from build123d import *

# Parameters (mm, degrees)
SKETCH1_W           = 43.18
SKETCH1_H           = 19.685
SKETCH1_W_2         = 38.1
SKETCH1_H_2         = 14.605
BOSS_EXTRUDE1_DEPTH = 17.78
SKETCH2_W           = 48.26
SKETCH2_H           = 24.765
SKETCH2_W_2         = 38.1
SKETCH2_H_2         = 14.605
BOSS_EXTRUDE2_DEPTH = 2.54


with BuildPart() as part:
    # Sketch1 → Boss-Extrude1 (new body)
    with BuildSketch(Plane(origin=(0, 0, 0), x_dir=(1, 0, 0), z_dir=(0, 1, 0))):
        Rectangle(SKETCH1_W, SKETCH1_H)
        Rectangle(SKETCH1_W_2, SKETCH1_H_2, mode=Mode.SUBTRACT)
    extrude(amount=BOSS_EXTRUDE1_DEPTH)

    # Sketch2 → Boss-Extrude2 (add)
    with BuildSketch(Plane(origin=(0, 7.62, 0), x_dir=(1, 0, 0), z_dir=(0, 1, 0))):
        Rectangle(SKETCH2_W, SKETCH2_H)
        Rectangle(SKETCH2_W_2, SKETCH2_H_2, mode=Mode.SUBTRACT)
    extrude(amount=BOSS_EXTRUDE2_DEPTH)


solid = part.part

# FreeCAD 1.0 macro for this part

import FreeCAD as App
import Part
import Sketcher
from FreeCAD import Vector
Q = App.Units.Quantity


def add_polygon(sketch, points):
    """Adds a closed chain of lines whose ends are joined by coincident constraints."""
    first, n = sketch.GeometryCount, len(points)
    for a, b in zip(points, points[1:] + points[:1]):
        sketch.addGeometry(Part.LineSegment(App.Vector(*a, 0), App.Vector(*b, 0)), False)
    for i in range(n):
        sketch.addConstraint(Sketcher.Constraint("Coincident", first + i, 2, first + (i + 1) % n, 1))

doc = App.newDocument("Part")
body = doc.addObject("PartDesign::Body", "Body")

sketch1 = doc.addObject("Sketcher::SketchObject", "Sketch")
body.addObject(sketch1)
sketch1.AttachmentSupport = (doc.XZ_Plane, [""])
sketch1.MapMode = "FlatFace"
add_polygon(sketch1, [(-21.59, -9.8425), (-21.59, 9.8425), (21.59, 9.8425), (21.59, -9.8425)])
add_polygon(sketch1, [(19.05, 7.3025), (-19.05, 7.3025), (-19.05, -7.3025), (19.05, -7.3025)])
sketch1.addConstraint([
    Sketcher.Constraint("Vertical", 0),
    Sketcher.Constraint("Horizontal", 1),
    Sketcher.Constraint("Vertical", 2),
    Sketcher.Constraint("Horizontal", 3),
    Sketcher.Constraint("Horizontal", 4),
    Sketcher.Constraint("Vertical", 5),
    Sketcher.Constraint("Horizontal", 6),
    Sketcher.Constraint("Vertical", 7),
    Sketcher.Constraint("Symmetric", 0, 2, 2, 2, -1, 1),
    Sketcher.Constraint("Symmetric", 4, 2, 6, 2, -1, 1),
    Sketcher.Constraint("DistanceX", 1, 1, 1, 2, Q("1.7 in")),
    Sketcher.Constraint("DistanceX", 4, 2, 4, 1, Q("1.5 in")),
    Sketcher.Constraint("DistanceY", 4, 2, 0, 2, Q("0.1 in")),
    Sketcher.Constraint("DistanceY", 0, 1, 0, 2, Q("0.775 in")),
])
pad1 = doc.addObject("PartDesign::Pad", "Pad")
body.addObject(pad1)
pad1.Profile = sketch1
pad1.Length = Q("0.7 in")
pad1.Reversed = True

sketch2 = doc.addObject("Sketcher::SketchObject", "Sketch001")
body.addObject(sketch2)
sketch2.AttachmentSupport = (doc.XZ_Plane, [""])
sketch2.MapMode = "FlatFace"
sketch2.AttachmentOffset = App.Placement(Vector(0, 0, -0.3 * 25.4), App.Rotation())
add_polygon(sketch2, [(-24.13, -12.3825), (-24.13, 12.3825), (24.13, 12.3825), (24.13, -12.3825)])
add_polygon(sketch2, [(19.05, 7.3025), (-19.05, 7.3025), (-19.05, -7.3025), (19.05, -7.3025)])
sketch2.addConstraint([
    Sketcher.Constraint("Vertical", 0),
    Sketcher.Constraint("Horizontal", 1),
    Sketcher.Constraint("Vertical", 2),
    Sketcher.Constraint("Horizontal", 3),
    Sketcher.Constraint("Horizontal", 4),
    Sketcher.Constraint("Vertical", 5),
    Sketcher.Constraint("Horizontal", 6),
    Sketcher.Constraint("Vertical", 7),
    Sketcher.Constraint("Symmetric", 0, 2, 2, 2, -1, 1),
    Sketcher.Constraint("Symmetric", 4, 2, 6, 2, -1, 1),
    Sketcher.Constraint("DistanceX", 1, 1, 1, 2, Q("1.9 in")),
    Sketcher.Constraint("DistanceX", 4, 2, 4, 1, Q("1.5 in")),
    Sketcher.Constraint("DistanceY", 4, 2, 0, 2, Q("0.2 in")),
    Sketcher.Constraint("DistanceY", 0, 1, 0, 2, Q("0.975 in")),
])
pad2 = doc.addObject("PartDesign::Pad", "Pad001")
body.addObject(pad2)
pad2.Profile = sketch2
pad2.Length = Q("0.1 in")
pad2.Reversed = True

doc.recompute()
